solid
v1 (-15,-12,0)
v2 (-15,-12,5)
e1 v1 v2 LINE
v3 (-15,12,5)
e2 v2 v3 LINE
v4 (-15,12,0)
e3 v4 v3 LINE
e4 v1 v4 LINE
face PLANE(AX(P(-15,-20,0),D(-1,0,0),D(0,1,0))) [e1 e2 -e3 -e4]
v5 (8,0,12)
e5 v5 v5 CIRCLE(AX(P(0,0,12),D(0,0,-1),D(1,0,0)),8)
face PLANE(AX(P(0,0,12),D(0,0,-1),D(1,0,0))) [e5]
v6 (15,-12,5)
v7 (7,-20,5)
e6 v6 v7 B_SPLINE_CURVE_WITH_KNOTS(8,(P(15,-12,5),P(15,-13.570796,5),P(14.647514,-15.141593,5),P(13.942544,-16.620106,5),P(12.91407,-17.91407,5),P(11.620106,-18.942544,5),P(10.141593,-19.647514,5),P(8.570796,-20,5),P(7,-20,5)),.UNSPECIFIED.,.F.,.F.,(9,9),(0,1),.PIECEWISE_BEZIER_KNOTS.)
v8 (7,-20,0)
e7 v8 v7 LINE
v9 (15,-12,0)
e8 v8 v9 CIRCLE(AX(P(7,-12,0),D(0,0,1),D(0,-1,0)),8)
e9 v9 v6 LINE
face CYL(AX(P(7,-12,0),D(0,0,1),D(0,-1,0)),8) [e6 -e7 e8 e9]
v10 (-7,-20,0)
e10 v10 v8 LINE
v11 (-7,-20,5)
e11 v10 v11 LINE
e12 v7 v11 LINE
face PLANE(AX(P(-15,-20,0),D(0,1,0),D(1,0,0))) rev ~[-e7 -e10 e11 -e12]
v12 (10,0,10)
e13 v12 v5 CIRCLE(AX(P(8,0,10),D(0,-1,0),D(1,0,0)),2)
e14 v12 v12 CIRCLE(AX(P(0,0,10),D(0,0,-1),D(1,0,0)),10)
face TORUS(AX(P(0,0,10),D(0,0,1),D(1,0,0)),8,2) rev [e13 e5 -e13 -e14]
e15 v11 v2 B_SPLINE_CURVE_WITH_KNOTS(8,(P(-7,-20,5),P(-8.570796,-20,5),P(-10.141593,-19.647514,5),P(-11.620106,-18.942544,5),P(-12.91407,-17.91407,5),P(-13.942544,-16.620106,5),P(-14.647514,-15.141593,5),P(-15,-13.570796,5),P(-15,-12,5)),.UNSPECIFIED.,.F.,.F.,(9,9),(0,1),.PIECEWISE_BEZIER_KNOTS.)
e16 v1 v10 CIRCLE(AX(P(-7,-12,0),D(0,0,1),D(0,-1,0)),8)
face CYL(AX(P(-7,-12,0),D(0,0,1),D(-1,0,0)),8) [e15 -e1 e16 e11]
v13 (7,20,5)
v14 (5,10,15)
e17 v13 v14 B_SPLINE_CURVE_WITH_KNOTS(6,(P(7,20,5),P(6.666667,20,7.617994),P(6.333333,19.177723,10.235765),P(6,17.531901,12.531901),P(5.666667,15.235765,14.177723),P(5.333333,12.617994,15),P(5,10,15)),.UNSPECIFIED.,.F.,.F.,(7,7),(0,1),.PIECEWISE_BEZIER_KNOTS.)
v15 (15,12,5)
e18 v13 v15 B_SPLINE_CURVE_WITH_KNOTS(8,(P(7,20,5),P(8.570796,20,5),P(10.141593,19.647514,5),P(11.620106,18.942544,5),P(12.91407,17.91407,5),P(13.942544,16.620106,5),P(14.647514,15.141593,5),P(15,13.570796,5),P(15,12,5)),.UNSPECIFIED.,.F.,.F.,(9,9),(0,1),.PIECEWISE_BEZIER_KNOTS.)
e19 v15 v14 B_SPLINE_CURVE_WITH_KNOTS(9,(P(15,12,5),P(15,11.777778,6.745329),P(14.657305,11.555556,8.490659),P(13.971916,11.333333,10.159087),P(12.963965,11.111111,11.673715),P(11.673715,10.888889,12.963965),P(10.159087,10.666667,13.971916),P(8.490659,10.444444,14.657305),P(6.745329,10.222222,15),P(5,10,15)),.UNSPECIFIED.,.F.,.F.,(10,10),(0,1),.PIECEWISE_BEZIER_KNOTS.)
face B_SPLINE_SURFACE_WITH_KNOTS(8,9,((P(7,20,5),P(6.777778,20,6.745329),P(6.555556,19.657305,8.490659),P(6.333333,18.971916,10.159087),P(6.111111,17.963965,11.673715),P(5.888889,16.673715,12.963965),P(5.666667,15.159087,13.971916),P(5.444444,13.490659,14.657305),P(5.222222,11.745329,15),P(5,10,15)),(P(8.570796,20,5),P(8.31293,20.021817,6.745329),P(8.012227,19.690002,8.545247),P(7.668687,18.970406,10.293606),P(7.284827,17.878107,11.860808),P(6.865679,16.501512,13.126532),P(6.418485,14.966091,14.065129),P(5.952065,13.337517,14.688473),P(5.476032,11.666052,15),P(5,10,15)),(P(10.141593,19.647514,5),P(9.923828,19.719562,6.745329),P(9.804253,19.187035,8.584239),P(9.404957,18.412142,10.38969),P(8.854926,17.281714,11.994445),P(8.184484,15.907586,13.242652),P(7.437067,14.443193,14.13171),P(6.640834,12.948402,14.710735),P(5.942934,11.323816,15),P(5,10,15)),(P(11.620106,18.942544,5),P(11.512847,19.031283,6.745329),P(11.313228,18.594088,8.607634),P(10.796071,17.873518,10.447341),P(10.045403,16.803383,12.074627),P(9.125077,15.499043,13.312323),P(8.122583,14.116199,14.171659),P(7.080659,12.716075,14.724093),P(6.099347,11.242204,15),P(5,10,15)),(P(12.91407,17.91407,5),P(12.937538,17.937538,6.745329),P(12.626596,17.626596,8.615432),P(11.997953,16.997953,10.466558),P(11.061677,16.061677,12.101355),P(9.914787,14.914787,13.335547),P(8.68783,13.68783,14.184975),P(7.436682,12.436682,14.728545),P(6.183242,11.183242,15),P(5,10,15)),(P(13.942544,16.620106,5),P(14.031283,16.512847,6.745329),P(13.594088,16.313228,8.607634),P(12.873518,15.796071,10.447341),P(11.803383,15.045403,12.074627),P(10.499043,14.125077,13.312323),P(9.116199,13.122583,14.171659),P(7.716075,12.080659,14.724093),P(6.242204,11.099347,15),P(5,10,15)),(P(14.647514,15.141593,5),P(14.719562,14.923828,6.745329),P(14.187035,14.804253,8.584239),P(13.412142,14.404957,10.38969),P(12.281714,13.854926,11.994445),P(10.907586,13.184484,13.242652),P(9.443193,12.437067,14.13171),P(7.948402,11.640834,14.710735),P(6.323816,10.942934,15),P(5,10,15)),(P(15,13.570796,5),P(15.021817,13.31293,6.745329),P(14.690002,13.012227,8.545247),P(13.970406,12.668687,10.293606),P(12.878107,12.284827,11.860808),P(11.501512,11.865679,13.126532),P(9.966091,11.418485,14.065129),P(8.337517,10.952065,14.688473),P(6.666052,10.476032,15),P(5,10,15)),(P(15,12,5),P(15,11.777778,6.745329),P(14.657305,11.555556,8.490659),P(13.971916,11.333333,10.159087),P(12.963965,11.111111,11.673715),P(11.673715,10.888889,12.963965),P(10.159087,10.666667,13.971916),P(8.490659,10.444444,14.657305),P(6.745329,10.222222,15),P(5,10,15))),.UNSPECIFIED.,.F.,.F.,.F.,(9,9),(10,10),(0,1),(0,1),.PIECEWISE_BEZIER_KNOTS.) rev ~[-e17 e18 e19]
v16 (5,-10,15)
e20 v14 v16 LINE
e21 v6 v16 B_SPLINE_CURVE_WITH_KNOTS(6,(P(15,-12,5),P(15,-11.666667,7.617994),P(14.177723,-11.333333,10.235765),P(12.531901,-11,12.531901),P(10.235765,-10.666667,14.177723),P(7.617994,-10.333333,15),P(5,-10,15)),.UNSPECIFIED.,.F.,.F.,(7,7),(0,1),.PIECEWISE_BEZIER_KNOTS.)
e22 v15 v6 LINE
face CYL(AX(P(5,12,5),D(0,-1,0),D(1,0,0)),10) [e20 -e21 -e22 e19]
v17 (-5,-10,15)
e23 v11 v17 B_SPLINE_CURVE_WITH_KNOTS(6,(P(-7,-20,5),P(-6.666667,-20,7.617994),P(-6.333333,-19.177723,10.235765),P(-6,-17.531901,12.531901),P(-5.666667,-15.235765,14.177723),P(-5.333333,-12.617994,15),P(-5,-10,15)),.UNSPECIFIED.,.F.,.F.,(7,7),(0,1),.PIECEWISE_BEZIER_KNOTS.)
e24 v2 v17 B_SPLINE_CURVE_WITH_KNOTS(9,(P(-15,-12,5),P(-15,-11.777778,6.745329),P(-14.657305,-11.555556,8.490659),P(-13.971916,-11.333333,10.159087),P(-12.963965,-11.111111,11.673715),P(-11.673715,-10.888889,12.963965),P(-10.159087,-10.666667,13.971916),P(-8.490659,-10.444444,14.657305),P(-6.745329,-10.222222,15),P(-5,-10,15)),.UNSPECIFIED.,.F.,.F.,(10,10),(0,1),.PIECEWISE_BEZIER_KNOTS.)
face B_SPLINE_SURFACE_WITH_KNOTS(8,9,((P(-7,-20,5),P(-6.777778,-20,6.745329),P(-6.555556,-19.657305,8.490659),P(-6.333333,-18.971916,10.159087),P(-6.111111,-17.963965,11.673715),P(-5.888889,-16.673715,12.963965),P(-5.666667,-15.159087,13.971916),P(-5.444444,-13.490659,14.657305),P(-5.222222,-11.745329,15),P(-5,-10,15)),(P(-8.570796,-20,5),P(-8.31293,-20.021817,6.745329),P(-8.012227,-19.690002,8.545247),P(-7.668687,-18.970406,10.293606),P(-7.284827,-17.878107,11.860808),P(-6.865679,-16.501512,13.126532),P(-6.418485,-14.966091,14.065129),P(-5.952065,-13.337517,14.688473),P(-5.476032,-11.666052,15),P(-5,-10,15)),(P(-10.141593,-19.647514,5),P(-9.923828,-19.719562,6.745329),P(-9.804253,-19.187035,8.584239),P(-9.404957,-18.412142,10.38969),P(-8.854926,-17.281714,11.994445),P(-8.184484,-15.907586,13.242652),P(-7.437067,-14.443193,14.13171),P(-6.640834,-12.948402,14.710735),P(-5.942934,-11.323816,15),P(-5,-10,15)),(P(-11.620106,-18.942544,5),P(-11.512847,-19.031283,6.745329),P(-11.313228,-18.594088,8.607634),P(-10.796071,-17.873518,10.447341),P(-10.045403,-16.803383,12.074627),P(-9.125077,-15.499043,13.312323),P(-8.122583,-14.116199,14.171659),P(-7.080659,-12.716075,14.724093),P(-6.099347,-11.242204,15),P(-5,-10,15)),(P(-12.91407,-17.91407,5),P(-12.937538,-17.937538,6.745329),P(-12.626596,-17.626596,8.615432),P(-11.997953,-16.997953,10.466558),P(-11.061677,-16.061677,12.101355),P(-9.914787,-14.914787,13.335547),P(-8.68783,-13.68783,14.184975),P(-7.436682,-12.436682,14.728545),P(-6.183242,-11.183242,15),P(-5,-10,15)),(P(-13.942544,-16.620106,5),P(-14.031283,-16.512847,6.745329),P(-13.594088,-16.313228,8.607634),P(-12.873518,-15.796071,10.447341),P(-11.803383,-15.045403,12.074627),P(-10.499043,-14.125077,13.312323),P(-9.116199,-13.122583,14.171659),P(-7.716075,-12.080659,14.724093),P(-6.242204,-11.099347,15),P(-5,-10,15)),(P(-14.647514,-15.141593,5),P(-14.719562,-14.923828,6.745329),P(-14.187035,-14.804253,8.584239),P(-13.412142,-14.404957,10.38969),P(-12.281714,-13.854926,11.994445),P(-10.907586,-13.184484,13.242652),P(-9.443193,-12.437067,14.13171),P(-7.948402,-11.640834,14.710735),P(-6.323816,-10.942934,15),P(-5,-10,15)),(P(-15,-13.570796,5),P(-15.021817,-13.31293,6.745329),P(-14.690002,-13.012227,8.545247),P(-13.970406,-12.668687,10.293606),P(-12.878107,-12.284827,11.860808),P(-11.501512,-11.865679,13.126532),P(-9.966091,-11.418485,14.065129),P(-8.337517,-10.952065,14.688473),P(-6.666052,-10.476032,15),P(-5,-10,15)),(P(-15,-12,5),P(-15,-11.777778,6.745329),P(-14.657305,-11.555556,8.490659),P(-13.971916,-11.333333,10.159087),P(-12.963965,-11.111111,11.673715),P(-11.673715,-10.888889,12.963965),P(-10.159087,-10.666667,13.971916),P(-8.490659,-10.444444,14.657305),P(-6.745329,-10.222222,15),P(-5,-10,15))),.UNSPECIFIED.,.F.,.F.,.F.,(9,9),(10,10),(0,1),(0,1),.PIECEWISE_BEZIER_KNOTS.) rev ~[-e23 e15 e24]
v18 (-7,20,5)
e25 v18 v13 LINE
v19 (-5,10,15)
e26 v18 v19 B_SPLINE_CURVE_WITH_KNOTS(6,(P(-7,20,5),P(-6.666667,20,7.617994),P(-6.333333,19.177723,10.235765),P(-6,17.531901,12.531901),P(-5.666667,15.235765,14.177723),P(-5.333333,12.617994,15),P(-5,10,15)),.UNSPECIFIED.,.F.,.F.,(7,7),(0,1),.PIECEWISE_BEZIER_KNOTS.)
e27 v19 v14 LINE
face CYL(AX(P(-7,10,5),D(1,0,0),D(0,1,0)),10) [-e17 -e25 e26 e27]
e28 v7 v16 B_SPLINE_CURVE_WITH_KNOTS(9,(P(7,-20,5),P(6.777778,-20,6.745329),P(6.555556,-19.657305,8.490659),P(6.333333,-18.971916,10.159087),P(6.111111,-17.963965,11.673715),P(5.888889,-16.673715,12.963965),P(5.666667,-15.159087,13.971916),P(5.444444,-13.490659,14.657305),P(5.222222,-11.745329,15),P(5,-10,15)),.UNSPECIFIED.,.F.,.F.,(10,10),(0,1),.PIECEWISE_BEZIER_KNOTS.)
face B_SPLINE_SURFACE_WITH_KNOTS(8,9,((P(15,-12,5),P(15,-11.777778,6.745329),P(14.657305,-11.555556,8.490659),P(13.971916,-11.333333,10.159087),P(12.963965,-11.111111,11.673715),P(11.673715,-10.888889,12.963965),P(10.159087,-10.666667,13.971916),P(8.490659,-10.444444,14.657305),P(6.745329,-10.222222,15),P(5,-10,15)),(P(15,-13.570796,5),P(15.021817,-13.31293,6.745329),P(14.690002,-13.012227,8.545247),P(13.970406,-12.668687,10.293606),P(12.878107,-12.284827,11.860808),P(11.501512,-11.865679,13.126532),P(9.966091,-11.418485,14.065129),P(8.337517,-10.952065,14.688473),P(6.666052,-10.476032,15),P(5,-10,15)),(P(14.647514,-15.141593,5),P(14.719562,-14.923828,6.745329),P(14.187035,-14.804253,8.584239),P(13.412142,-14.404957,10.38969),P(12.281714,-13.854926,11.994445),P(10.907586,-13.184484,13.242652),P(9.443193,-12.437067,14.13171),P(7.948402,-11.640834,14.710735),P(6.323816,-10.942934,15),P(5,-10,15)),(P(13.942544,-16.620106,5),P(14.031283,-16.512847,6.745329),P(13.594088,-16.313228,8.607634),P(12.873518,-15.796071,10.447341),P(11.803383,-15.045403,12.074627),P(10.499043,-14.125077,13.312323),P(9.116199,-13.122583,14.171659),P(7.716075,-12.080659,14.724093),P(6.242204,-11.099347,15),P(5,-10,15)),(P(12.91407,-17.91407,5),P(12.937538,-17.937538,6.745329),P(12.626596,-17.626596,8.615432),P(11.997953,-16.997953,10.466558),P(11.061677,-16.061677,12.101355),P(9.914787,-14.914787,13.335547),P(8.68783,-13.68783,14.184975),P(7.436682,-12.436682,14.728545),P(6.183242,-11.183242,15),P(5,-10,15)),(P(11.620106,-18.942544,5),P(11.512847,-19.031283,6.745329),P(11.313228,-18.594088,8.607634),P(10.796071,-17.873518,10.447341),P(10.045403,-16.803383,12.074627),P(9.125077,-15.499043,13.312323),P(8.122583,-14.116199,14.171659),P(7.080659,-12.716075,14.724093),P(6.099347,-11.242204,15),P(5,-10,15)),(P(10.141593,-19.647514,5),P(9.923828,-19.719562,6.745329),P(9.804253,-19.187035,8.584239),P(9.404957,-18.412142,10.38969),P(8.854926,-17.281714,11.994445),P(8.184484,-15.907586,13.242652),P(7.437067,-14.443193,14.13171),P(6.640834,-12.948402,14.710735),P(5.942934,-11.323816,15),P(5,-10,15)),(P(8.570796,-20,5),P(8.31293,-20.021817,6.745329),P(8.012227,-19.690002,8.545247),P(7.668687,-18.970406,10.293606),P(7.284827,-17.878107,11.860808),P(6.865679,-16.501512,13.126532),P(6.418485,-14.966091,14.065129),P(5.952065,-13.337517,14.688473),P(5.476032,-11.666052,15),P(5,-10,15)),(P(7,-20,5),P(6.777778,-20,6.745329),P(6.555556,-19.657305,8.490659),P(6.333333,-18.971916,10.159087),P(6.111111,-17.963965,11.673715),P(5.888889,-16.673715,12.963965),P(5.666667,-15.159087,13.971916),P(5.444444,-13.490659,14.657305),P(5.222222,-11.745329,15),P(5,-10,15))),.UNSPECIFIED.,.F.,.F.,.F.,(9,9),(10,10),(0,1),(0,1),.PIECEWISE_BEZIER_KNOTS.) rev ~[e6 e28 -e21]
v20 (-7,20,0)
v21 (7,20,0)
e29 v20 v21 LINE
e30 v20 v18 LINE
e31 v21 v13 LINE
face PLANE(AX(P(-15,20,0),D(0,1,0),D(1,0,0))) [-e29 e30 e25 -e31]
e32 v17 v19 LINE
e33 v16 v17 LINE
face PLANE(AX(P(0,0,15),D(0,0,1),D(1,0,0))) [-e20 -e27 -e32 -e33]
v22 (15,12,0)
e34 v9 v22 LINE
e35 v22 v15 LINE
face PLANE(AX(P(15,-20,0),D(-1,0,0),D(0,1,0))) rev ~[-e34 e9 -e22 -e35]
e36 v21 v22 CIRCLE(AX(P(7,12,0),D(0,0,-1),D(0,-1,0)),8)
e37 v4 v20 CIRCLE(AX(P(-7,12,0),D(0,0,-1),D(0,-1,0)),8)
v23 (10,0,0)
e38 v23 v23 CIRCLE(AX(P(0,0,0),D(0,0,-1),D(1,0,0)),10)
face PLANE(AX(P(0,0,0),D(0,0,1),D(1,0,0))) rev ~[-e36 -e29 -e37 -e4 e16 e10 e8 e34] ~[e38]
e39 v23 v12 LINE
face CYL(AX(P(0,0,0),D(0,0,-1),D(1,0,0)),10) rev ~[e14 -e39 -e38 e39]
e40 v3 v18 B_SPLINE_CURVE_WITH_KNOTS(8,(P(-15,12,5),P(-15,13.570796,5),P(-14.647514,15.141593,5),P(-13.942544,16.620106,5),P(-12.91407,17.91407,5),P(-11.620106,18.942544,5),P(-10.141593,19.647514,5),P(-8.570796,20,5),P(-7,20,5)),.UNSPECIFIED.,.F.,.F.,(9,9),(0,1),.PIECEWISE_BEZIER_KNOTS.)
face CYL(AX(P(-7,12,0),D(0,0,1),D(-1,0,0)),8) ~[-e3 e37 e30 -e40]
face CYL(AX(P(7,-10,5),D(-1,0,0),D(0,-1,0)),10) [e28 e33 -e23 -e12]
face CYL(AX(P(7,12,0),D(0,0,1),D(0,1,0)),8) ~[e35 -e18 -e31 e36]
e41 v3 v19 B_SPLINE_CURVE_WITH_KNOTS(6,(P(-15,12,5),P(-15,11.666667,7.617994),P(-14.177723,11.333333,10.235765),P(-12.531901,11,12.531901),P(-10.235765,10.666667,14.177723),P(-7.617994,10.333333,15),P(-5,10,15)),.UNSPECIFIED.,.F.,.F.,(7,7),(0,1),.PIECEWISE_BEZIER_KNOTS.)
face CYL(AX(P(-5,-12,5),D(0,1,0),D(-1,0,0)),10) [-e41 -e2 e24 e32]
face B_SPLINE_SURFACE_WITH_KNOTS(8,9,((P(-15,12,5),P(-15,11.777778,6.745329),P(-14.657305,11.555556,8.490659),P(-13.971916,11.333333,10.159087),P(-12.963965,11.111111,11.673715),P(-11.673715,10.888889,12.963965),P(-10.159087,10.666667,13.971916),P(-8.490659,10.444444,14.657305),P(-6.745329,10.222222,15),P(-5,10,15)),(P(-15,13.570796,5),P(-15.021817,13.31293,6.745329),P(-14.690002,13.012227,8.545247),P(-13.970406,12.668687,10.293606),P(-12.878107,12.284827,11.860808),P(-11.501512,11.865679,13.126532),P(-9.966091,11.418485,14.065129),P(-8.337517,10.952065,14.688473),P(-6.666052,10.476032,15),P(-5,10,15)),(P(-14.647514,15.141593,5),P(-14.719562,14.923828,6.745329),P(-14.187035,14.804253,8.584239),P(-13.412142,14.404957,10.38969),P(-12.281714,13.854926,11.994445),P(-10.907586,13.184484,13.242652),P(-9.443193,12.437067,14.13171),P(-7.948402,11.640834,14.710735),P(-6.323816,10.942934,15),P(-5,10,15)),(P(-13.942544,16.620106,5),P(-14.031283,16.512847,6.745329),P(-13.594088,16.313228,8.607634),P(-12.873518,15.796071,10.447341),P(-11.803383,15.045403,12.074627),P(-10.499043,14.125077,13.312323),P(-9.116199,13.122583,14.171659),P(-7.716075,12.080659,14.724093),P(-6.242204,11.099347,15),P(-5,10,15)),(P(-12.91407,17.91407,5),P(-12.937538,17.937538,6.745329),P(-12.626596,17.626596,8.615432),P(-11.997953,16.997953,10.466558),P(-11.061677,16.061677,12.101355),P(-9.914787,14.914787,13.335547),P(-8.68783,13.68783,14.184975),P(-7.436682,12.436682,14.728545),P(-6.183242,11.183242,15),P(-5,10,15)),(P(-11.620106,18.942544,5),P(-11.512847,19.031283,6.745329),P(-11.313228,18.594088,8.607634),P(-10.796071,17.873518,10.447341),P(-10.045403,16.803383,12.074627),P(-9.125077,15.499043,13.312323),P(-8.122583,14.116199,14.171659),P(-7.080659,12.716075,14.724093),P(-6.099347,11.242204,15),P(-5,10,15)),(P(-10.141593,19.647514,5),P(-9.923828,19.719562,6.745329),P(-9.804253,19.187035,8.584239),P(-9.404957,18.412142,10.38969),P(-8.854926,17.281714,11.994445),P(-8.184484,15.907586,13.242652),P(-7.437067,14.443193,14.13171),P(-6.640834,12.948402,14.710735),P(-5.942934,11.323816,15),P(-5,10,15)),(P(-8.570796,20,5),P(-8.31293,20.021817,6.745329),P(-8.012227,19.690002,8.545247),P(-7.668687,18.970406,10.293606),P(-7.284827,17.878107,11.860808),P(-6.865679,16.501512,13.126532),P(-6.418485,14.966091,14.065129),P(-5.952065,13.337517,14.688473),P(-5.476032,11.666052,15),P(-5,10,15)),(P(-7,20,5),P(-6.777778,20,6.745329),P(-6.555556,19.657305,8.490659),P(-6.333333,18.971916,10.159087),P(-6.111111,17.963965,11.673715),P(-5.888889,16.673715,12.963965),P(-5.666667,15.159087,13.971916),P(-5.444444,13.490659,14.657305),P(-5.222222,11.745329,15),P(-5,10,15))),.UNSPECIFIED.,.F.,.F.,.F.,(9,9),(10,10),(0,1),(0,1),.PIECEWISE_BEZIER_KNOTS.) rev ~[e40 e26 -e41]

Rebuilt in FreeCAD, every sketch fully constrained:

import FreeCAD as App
import Part
import Sketcher


def edges_at(feature, points):
    """Names of the edges that pass closest to the given points."""
    edges = feature.Shape.Edges
    near = lambda p: min(range(len(edges)), key=lambda i: edges[i].distToShape(Part.Vertex(*p))[0])
    return sorted({f"Edge{near(p) + 1}" for p in points})


def add_polygon(sketch, points):
    """Adds a closed chain of lines whose ends are joined by coincident constraints."""
    first, n = sketch.GeometryCount, len(points)
    for a, b in zip(points, points[1:] + points[:1]):
        sketch.addGeometry(Part.LineSegment(App.Vector(*a, 0), App.Vector(*b, 0)), False)
    for i in range(n):
        sketch.addConstraint(Sketcher.Constraint("Coincident", first + i, 2, first + (i + 1) % n, 1))

doc = App.newDocument("Part")
body = doc.addObject("PartDesign::Body", "Body")

# Sketch on XY plane
sketch1 = doc.addObject("Sketcher::SketchObject", "Sketch")
body.addObject(sketch1)
sketch1.AttachmentSupport = (doc.XY_Plane, [""])
sketch1.MapMode = "FlatFace"
add_polygon(sketch1, [(-15, 20), (-15, -20), (15, -20), (15, 20)])  # lines 0-3
sketch1.addConstraint(Sketcher.Constraint("Vertical", 0))
sketch1.addConstraint(Sketcher.Constraint("Horizontal", 1))
sketch1.addConstraint(Sketcher.Constraint("Vertical", 2))
sketch1.addConstraint(Sketcher.Constraint("Horizontal", 3))
sketch1.addConstraint(Sketcher.Constraint("Symmetric", 0, 2, 2, 2, -1, 1))
sketch1.addConstraint(Sketcher.Constraint("DistanceX", 1, 1, 1, 2, 30.0))
sketch1.addConstraint(Sketcher.Constraint("DistanceY", 0, 2, 0, 1, 40.0))
pad1 = doc.addObject("PartDesign::Pad", "Pad")
body.addObject(pad1)
pad1.Profile = sketch1
pad1.Length = 15

# Sketch on XY plane
sketch2 = doc.addObject("Sketcher::SketchObject", "Sketch001")
body.addObject(sketch2)
sketch2.AttachmentSupport = (doc.XY_Plane, [""])
sketch2.MapMode = "FlatFace"
sketch2.addGeometry(Part.Circle(App.Vector(0, 0, 0), App.Vector(0, 0, 1), 10), False)
sketch2.addConstraint(Sketcher.Constraint("Coincident", 0, 3, -1, 1))
sketch2.addConstraint(Sketcher.Constraint("Diameter", 0, 20.0))
pocket1 = doc.addObject("PartDesign::Pocket", "Pocket")
body.addObject(pocket1)
pocket1.Profile = sketch2
pocket1.Length = 12
pocket1.Reversed = True
doc.recompute()

fillet = doc.addObject("PartDesign::Fillet", "Fillet")
body.addObject(fillet)
fillet.Base = (pocket1, edges_at(pocket1, [(-10, 0, 12)]))
fillet.Radius = 2
doc.recompute()

fillet2 = doc.addObject("PartDesign::Fillet", "Fillet001")
body.addObject(fillet2)
fillet2.Base = (fillet, edges_at(fillet, [
    (-15, 20, 7.5),
    (-15, -20, 7.5),
    (15, -20, 7.5),
    (15, 20, 7.5),
]))
fillet2.Radius = 8
doc.recompute()

fillet3 = doc.addObject("PartDesign::Fillet", "Fillet002")
body.addObject(fillet3)
fillet3.Base = (fillet2, edges_at(fillet2, [
    (0, 20, 15),
    (12.657, 17.657, 15),
    (-12.657, 17.657, 15),
    (15, 0, 15),
    (-15, 0, 15),
    (12.657, -17.657, 15),
    (-12.657, -17.657, 15),
    (0, -20, 15),
]))
fillet3.Radius = 10

doc.recompute()
